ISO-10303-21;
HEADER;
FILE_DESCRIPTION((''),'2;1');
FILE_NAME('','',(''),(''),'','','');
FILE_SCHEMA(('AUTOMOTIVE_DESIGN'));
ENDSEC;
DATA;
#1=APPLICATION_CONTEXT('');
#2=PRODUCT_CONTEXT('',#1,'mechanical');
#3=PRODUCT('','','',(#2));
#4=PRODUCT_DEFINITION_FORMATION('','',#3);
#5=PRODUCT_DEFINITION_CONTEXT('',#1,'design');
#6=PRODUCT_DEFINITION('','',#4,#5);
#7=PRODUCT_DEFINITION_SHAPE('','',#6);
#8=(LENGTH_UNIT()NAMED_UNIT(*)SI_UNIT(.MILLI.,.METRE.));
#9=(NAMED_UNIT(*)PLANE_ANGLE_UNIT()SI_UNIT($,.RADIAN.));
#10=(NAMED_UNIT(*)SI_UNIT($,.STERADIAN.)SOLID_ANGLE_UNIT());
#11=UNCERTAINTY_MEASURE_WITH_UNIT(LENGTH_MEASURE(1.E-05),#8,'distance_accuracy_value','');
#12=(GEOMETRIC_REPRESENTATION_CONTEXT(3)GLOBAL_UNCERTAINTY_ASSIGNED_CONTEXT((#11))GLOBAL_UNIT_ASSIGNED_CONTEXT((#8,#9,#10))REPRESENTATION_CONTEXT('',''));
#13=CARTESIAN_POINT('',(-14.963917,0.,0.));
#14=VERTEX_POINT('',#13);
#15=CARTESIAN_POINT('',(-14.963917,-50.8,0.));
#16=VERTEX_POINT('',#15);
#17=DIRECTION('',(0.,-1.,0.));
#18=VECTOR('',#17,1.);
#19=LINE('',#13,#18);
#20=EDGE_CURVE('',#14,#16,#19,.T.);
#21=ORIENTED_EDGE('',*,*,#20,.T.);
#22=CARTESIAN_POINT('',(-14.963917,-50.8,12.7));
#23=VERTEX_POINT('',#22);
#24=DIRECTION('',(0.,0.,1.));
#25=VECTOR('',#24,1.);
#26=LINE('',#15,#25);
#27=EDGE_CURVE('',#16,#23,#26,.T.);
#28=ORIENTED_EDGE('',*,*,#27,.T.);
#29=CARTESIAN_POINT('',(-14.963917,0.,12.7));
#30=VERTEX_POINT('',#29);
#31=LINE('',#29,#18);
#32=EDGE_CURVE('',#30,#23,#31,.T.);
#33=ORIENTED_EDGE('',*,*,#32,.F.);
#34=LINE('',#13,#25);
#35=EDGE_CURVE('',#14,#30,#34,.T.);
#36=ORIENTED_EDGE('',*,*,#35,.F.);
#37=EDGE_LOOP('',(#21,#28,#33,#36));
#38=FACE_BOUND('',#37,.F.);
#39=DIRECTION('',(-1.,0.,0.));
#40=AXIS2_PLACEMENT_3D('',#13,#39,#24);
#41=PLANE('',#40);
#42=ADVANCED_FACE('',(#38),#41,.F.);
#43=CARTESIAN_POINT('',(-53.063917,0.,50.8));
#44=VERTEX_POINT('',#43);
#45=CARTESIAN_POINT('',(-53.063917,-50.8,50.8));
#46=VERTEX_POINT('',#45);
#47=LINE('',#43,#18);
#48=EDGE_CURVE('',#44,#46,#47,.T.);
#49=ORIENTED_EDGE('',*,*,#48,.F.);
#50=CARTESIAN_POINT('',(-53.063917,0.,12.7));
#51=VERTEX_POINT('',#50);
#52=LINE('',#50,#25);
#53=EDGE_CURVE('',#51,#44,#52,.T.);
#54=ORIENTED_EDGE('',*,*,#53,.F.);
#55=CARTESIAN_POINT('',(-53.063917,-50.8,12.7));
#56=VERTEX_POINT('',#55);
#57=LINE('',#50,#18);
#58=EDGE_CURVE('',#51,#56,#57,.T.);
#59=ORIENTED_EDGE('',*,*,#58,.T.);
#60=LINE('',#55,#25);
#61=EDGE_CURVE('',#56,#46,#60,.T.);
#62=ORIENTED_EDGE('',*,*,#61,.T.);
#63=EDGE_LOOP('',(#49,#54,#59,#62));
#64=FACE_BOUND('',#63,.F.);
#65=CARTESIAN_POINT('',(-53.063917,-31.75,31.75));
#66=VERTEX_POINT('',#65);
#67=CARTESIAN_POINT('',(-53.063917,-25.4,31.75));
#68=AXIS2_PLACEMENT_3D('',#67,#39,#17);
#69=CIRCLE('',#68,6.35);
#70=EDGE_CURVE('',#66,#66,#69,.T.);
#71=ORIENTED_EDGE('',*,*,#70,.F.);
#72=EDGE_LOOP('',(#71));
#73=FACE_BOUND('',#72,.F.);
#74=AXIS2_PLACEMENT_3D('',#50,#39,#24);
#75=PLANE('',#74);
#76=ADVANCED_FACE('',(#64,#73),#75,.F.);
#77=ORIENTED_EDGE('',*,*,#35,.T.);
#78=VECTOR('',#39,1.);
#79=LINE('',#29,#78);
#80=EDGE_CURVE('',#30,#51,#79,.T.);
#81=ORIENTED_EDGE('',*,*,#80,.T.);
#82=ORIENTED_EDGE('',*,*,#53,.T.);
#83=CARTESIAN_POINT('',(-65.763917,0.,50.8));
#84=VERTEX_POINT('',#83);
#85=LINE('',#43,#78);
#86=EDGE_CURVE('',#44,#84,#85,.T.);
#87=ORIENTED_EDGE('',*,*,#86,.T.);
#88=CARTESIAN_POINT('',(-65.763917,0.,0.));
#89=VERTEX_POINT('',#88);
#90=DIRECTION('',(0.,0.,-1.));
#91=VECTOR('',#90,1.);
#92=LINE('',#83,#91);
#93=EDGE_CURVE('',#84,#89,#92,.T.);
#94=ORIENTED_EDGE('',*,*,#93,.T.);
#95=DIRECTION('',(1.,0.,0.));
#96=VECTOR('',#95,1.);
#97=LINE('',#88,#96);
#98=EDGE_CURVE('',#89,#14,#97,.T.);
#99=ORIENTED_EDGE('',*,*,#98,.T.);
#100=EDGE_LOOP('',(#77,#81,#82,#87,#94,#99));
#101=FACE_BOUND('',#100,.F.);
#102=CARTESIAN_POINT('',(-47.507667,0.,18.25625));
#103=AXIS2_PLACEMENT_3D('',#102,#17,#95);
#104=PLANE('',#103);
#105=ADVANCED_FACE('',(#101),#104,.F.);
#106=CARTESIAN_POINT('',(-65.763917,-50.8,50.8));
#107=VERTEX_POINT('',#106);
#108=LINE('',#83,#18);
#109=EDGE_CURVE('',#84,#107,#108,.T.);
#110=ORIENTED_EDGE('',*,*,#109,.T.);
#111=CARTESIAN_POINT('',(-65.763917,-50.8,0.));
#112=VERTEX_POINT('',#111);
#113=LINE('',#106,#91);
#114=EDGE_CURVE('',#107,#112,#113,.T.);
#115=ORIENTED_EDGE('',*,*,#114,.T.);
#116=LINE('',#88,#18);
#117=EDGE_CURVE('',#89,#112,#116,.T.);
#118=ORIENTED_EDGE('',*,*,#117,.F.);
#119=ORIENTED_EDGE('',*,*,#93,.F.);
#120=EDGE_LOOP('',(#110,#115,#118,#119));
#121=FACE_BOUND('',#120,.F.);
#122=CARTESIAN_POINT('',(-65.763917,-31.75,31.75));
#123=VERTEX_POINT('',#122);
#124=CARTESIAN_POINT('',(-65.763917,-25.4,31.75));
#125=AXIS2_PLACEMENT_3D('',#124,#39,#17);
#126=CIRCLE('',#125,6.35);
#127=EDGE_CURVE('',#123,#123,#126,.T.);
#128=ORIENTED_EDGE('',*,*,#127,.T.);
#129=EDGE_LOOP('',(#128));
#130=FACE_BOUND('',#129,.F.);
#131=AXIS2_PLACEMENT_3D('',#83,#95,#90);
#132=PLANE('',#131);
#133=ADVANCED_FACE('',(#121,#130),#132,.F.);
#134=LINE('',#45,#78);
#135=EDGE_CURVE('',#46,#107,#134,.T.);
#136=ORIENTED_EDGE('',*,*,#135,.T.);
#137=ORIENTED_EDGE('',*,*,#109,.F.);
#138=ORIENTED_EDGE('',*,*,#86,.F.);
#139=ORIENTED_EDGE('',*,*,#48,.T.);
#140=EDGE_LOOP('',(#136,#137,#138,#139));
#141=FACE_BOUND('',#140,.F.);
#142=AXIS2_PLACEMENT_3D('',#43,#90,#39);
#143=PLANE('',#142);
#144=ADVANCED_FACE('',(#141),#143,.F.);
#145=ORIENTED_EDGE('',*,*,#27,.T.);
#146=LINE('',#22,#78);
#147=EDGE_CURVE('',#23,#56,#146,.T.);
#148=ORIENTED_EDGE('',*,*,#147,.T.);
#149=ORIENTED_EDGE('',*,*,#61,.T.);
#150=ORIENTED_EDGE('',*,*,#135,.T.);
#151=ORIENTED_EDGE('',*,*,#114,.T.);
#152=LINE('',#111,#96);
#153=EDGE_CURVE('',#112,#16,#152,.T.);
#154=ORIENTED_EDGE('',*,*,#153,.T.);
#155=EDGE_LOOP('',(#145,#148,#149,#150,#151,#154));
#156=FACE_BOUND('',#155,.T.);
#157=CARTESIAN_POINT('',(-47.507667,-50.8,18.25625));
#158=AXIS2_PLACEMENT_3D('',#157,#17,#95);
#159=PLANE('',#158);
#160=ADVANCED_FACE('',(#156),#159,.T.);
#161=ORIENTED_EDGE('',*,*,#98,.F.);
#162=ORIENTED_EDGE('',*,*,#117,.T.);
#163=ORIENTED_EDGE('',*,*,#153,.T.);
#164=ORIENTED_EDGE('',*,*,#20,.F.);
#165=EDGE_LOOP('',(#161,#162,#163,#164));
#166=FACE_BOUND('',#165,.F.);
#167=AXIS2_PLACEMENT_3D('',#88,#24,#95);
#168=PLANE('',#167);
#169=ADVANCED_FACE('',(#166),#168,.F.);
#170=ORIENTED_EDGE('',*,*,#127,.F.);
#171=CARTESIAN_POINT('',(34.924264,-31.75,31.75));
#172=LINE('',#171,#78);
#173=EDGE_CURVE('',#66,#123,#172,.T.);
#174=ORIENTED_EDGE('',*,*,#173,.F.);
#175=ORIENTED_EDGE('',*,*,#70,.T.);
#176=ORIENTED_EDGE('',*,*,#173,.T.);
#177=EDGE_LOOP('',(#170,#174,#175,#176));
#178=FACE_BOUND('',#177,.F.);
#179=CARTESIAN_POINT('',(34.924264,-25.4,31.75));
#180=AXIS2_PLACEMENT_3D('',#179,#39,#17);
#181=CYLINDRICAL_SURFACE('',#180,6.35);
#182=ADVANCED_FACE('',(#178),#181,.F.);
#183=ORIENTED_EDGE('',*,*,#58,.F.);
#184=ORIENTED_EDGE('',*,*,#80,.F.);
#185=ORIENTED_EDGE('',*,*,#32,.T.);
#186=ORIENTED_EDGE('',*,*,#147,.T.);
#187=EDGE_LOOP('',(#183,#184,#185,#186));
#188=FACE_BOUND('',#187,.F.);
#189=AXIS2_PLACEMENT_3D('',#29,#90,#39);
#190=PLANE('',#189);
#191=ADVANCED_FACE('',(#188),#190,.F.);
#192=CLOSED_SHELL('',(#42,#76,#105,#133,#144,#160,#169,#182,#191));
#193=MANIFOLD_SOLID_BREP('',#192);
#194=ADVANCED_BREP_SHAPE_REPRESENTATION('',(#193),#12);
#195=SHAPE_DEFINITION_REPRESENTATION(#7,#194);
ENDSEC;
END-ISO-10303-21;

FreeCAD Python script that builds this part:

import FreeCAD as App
import Part
import Sketcher
from FreeCAD import Vector
Q = App.Units.Quantity


def add_polygon(sketch, points):
    """Adds a closed chain of lines whose ends are joined by coincident constraints."""
    first, n = sketch.GeometryCount, len(points)
    for a, b in zip(points, points[1:] + points[:1]):
        sketch.addGeometry(Part.LineSegment(App.Vector(*a, 0), App.Vector(*b, 0)), False)
    for i in range(n):
        sketch.addConstraint(Sketcher.Constraint("Coincident", first + i, 2, first + (i + 1) % n, 1))

doc = App.newDocument("Part")
body = doc.addObject("PartDesign::Body", "Body")

sketch1 = doc.addObject("Sketcher::SketchObject", "Sketch")
body.addObject(sketch1)
sketch1.AttachmentSupport = (doc.XZ_Plane, [""])
sketch1.MapMode = "FlatFace"
add_polygon(sketch1, [(-53, 51), (-66, 51), (-66, 0), (-15, 0), (-15, 13), (-53, 13)])
sketch1.addConstraint(Sketcher.Constraint("Horizontal", 0))
sketch1.addConstraint(Sketcher.Constraint("Vertical", 1))
sketch1.addConstraint(Sketcher.Constraint("Horizontal", 2))
sketch1.addConstraint(Sketcher.Constraint("Vertical", 3))
sketch1.addConstraint(Sketcher.Constraint("Horizontal", 4))
sketch1.addConstraint(Sketcher.Constraint("Vertical", 5))
sketch1.addConstraint(Sketcher.Constraint("PointOnObject", 1, 2, -1))
sketch1.addConstraint(Sketcher.Constraint("Equal", 2, 1))
sketch1.addConstraint(Sketcher.Constraint("Equal", 0, 3))
sketch1.addConstraint(Sketcher.Constraint("DistanceX", 2, 1, 2, 2, Q("2 in")))
sketch1.addConstraint(Sketcher.Constraint("DistanceX", 0, 2, 0, 1, Q("0.5 in")))
sketch1.addConstraint(Sketcher.Constraint("DistanceX", 0, 2, -1, 1, Q("65.763917 mm")))
pad1 = doc.addObject("PartDesign::Pad", "Pad")
body.addObject(pad1)
pad1.Profile = sketch1
pad1.Length = Q("2 in")

sketch2 = doc.addObject("Sketcher::SketchObject", "Sketch001")
body.addObject(sketch2)
sketch2.AttachmentSupport = (doc.YZ_Plane, [""])
sketch2.MapMode = "FlatFace"
sketch2.AttachmentOffset = App.Placement(Vector(0, 0, -53.063917), App.Rotation())
sketch2.addGeometry(Part.Circle(Vector(-25, 32, 0), Vector(0, 0, 1), 6), False)
sketch2.addConstraint(Sketcher.Constraint("Diameter", 0, Q("0.5 in")))
sketch2.addConstraint(Sketcher.Constraint("DistanceX", 0, 3, -1, 1, Q("1 in")))
sketch2.addConstraint(Sketcher.Constraint("DistanceY", -1, 1, 0, 3, Q("1.25 in")))
doc.recompute()
hole = doc.addObject("PartDesign::Hole", "Hole")
body.addObject(hole)
hole.Profile = sketch2
hole.ThreadType = "None"
hole.Diameter = Q("0.5 in")
hole.DepthType = "ThroughAll"

doc.recompute()
